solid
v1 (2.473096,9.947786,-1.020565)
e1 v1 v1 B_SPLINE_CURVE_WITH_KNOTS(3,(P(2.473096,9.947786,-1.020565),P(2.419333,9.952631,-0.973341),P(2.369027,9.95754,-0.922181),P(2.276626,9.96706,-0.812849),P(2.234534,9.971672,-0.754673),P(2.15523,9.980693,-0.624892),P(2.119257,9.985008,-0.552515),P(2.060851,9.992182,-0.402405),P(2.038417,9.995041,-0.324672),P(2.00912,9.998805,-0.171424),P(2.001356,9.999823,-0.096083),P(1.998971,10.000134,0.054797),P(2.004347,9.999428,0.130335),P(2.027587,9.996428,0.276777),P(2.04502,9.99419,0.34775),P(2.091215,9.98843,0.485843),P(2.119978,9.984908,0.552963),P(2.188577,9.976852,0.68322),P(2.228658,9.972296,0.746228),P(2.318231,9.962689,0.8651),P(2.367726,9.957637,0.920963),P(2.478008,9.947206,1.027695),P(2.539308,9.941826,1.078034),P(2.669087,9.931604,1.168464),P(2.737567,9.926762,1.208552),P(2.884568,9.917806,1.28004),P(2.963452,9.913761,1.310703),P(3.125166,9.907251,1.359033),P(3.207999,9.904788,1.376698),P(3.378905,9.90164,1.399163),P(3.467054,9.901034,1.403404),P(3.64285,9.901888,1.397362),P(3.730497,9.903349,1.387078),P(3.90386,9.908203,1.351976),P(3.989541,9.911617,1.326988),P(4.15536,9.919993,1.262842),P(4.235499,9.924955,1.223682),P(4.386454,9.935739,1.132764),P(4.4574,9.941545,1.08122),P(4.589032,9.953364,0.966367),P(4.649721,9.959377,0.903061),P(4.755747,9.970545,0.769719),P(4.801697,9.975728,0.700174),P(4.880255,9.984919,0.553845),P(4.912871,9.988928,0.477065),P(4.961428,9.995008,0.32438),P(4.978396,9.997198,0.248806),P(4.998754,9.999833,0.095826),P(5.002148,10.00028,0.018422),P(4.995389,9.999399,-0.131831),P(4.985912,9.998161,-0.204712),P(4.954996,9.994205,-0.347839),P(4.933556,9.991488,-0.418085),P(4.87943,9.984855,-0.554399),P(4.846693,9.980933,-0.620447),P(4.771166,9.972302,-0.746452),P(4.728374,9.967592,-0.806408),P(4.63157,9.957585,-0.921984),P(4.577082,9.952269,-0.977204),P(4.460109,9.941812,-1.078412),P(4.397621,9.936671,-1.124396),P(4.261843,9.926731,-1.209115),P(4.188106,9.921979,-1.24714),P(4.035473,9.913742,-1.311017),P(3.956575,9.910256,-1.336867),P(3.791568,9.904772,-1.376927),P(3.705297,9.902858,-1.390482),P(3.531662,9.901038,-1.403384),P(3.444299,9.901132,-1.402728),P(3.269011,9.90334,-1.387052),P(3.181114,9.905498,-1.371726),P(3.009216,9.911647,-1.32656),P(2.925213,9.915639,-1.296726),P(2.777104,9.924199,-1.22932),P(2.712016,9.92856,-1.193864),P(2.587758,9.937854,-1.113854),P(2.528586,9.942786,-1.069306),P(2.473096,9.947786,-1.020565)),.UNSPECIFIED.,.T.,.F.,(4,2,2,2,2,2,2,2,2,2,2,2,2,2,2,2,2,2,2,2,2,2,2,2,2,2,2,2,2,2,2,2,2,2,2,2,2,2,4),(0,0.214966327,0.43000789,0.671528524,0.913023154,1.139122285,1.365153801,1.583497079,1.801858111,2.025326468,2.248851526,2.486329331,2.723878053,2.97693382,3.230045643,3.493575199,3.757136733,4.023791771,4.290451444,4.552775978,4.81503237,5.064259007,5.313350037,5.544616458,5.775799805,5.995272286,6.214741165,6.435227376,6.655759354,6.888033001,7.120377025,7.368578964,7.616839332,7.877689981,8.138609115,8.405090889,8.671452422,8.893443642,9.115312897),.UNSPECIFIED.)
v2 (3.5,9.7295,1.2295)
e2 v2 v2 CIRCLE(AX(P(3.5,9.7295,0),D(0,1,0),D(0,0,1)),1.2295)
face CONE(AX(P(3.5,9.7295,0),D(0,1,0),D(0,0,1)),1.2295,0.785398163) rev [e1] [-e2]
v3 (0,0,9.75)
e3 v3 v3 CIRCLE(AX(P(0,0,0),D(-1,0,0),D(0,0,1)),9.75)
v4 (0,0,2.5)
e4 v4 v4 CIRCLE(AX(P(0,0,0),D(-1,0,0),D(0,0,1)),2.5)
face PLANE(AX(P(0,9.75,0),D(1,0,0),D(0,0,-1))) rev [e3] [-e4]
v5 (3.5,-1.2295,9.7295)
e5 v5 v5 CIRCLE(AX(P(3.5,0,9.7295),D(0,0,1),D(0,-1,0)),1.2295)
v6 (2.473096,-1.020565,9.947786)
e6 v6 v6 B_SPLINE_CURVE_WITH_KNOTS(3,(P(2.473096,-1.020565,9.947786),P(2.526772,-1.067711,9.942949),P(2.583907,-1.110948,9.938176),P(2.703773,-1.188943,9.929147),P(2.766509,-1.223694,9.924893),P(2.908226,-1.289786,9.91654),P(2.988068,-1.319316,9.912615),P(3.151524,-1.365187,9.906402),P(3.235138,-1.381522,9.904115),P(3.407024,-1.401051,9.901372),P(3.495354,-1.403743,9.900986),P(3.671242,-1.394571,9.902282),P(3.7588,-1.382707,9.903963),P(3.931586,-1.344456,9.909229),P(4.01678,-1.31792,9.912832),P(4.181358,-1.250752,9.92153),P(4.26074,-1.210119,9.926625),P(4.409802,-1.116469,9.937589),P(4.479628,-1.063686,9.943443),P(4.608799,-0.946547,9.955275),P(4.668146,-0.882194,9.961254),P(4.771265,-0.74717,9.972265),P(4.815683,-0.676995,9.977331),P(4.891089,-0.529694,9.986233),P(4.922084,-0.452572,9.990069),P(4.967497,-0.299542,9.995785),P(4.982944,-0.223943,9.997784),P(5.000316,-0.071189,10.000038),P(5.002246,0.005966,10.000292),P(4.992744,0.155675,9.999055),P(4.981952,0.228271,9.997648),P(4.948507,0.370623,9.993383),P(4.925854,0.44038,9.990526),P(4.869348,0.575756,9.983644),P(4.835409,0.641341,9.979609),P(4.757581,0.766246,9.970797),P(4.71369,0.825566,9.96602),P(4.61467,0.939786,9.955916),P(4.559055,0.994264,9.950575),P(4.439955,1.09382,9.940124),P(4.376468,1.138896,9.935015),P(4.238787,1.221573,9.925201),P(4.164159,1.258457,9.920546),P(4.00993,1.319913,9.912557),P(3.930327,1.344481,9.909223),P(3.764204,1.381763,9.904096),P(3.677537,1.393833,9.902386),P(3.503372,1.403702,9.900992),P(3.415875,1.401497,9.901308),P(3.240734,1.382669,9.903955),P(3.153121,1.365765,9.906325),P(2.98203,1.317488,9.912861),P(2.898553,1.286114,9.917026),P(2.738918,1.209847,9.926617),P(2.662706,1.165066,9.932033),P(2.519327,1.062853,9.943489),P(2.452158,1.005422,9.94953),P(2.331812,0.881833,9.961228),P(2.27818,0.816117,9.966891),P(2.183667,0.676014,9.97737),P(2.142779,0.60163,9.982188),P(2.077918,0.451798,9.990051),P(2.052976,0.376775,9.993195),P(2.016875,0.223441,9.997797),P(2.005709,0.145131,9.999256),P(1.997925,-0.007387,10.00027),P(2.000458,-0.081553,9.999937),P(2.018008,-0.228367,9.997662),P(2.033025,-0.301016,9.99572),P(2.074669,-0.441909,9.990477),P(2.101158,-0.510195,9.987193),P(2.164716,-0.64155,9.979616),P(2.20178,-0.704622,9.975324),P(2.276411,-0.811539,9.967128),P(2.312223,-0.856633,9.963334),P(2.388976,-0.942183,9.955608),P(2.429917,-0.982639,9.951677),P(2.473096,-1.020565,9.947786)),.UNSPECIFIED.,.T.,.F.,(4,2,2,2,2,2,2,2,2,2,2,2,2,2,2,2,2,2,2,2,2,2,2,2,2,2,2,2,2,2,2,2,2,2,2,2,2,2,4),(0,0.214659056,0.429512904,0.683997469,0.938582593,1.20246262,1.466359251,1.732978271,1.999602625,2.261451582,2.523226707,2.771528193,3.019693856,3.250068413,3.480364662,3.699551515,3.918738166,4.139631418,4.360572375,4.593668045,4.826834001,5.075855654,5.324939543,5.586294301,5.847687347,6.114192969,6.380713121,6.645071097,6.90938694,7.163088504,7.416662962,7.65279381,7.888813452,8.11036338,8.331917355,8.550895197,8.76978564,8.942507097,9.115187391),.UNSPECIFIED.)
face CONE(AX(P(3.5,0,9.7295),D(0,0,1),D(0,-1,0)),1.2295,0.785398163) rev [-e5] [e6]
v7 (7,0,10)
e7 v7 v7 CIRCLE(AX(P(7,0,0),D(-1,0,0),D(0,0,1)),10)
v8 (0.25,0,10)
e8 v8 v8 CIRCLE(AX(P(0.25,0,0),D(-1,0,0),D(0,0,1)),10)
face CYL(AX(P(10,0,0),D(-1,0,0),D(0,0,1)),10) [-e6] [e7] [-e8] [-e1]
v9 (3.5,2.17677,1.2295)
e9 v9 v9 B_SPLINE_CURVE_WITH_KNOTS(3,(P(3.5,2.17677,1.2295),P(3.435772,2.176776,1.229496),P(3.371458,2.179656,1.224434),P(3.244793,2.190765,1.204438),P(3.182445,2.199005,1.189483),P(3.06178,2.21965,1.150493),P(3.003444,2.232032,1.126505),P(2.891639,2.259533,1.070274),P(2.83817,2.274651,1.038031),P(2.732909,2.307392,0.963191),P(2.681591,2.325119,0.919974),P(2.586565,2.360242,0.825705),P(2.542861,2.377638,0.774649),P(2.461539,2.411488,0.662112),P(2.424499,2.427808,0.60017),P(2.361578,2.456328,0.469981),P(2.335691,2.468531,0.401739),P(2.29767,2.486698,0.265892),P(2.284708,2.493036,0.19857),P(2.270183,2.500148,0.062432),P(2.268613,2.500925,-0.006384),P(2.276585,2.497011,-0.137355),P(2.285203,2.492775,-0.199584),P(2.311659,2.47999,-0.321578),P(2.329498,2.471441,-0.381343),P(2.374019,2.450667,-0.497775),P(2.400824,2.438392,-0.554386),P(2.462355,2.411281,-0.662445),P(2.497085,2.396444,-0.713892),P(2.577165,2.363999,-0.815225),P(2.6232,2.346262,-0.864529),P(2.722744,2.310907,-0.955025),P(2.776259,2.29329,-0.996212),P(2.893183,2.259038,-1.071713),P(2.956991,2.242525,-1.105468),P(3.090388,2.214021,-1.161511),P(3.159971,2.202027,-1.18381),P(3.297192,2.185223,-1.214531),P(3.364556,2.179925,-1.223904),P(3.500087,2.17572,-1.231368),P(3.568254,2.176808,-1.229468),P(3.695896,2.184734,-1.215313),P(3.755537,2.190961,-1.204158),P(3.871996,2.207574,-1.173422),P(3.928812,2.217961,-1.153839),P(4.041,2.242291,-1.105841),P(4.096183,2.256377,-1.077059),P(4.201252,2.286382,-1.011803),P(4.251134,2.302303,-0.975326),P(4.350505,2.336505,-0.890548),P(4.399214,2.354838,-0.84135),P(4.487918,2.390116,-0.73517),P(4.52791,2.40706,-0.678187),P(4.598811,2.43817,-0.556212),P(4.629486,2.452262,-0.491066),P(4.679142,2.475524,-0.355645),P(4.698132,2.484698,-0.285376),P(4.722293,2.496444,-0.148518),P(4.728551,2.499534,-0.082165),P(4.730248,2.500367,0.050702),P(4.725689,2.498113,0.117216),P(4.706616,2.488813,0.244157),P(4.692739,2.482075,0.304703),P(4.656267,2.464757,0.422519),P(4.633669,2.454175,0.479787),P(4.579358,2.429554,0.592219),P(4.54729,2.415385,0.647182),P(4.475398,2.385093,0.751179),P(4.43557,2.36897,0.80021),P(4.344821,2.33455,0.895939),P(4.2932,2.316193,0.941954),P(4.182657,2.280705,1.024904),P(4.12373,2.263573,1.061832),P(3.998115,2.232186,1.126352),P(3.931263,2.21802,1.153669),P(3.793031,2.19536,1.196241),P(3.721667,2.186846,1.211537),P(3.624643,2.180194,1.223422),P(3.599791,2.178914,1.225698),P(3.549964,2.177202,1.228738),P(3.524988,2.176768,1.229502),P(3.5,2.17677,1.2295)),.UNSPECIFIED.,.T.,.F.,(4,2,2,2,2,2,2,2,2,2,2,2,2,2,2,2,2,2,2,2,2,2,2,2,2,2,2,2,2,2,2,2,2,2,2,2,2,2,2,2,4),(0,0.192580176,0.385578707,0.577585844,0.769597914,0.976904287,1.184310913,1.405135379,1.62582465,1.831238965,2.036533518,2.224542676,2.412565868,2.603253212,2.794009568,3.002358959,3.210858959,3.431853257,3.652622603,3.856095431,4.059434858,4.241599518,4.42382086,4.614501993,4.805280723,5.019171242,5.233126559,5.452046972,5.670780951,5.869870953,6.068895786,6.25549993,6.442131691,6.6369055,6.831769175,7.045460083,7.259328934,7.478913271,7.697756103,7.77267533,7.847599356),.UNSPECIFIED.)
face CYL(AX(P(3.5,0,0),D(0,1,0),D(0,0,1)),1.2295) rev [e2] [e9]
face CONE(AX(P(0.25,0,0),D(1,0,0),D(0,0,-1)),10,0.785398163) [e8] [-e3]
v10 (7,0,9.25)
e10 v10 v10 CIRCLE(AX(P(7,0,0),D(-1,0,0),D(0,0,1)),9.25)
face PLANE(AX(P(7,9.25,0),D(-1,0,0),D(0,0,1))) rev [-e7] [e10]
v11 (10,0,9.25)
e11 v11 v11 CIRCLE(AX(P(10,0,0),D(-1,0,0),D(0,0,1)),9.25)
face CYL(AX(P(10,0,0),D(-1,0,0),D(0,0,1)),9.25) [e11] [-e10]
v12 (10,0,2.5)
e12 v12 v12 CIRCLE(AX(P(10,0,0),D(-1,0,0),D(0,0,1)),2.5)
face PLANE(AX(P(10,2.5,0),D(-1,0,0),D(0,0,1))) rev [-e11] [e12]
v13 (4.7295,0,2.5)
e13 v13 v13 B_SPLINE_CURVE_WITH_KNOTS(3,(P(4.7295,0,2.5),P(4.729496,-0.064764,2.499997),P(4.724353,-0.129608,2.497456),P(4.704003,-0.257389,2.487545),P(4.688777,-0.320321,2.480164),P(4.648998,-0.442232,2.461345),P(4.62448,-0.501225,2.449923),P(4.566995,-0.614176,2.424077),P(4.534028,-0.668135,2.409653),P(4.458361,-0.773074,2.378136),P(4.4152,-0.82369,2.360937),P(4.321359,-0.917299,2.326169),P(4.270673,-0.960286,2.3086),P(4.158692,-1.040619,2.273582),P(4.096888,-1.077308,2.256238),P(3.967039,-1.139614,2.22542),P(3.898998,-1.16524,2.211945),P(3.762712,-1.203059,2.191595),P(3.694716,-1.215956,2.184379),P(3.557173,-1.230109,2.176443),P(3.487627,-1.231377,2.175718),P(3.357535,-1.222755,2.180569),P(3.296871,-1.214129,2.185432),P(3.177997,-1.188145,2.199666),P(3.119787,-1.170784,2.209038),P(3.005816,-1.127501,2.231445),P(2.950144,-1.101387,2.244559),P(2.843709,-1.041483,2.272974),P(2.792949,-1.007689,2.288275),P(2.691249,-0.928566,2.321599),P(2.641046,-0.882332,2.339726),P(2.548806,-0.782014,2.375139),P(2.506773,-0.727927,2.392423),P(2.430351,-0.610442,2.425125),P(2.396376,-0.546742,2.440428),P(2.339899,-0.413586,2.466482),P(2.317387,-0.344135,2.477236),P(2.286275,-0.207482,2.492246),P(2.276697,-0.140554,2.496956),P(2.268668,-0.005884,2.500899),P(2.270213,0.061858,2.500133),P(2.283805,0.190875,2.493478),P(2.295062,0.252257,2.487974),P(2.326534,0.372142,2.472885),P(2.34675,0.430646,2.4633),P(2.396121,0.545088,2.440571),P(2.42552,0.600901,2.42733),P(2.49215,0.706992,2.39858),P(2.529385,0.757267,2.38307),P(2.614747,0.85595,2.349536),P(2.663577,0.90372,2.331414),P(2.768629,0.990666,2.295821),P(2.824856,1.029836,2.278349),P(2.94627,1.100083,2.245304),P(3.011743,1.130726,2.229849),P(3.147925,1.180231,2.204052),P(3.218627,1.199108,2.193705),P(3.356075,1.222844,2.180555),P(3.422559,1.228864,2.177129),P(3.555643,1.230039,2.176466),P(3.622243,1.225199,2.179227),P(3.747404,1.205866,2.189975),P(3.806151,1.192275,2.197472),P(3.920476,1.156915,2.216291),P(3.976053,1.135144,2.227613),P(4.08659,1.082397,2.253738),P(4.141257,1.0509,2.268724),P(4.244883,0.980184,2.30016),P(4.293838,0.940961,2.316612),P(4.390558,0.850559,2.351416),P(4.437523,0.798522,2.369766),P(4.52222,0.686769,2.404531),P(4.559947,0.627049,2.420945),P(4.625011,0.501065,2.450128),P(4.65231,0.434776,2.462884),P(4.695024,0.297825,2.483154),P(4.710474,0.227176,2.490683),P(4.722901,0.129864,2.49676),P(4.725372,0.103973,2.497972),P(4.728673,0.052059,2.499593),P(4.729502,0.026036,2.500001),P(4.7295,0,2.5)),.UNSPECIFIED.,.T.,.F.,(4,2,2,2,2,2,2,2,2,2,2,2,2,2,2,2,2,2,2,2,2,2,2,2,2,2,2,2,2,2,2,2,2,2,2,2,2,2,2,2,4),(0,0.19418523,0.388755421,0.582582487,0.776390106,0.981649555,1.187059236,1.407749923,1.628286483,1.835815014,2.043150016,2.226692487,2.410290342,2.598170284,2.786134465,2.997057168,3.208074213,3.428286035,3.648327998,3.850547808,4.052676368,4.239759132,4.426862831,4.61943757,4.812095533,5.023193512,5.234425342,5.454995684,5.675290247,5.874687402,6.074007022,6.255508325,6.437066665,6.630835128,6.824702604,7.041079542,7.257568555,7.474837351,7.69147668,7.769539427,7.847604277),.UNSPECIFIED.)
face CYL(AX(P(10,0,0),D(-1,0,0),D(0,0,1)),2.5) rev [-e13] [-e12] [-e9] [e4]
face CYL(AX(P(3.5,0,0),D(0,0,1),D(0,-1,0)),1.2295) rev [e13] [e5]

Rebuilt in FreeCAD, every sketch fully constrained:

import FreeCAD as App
import Part
import Sketcher

V = App.Vector
Q = App.Units.Quantity

doc = App.newDocument("Part")
params = doc.addObject("Spreadsheet::Sheet", "Params")
for row, (alias, value) in enumerate([
    ("sketch1_width", "10 mm"),
    ("sketch1_width2", "3 mm"),
    ("sketch1_width3", "6.75 mm"),
    ("sketch1_height", "7.25 mm"),
    ("revolution_angle", "360 deg"),
    ("sketch2_width", "10 mm"),
    ("sketch2_height", "1.5 mm"),
    ("groove_angle", "360 deg"),
    ("sketch3_height", "10 mm"),
    ("sketch3_width", "1.5 mm"),
    ("groove2_angle", "360 deg"),
], start=1):
    params.set(f"A{row}", alias)
    params.set(f"B{row}", "=" + value)
    params.setAlias(f"B{row}", alias)

body = doc.addObject("PartDesign::Body", "Body")

# Sketch on XY plane
sketch1 = body.newObject("Sketcher::SketchObject", "Sketch")
sketch1.AttachmentSupport = (doc.getObject("XY_Plane"), [""])
sketch1.MapMode = "FlatFace"
sketch1.addGeometry([
    Part.LineSegment(V(0, 9.75, 0), V(0, 2.5, 0)),  # 0
    Part.LineSegment(V(0, 2.5, 0), V(10, 2.5, 0)),  # 1
    Part.LineSegment(V(10, 2.5, 0), V(10, 9.25, 0)),  # 2
    Part.LineSegment(V(10, 9.25, 0), V(7, 9.25, 0)),  # 3
    Part.LineSegment(V(7, 9.25, 0), V(7, 10, 0)),  # 4
    Part.LineSegment(V(7, 10, 0), V(0.25, 10, 0)),  # 5
    Part.LineSegment(V(0.25, 10, 0), V(0, 9.75, 0)),  # 6
], False)
sketch1.addConstraint([
    Sketcher.Constraint("Coincident", 0, 2, 1, 1),
    Sketcher.Constraint("Coincident", 1, 2, 2, 1),
    Sketcher.Constraint("Coincident", 2, 2, 3, 1),
    Sketcher.Constraint("Coincident", 3, 2, 4, 1),
    Sketcher.Constraint("Coincident", 4, 2, 5, 1),
    Sketcher.Constraint("Coincident", 5, 2, 6, 1),
    Sketcher.Constraint("Coincident", 6, 2, 0, 1),
    Sketcher.Constraint("Vertical", 0),
    Sketcher.Constraint("Horizontal", 1),
    Sketcher.Constraint("Vertical", 2),
    Sketcher.Constraint("Horizontal", 3),
    Sketcher.Constraint("Vertical", 4),
    Sketcher.Constraint("Horizontal", 5),
    Sketcher.Constraint("PointOnObject", 0, 2, -2),
    Sketcher.Constraint("Equal", 5, 2),
    Sketcher.Constraint("DistanceX", 1, 1, 1, 2, 10.0),
    Sketcher.Constraint("DistanceX", 3, 2, 3, 1, 3.0),
    Sketcher.Constraint("Angle", 6, Q("-135 deg")),
    Sketcher.Constraint("DistanceY", -1, 1, 4, 2, 10.0),
    Sketcher.Constraint("DistanceX", 5, 2, 5, 1, 6.75),
    Sketcher.Constraint("DistanceY", 0, 2, 0, 1, 7.25),
])
sketch1.setExpression("Constraints[15]", "Params.sketch1_width")
sketch1.setExpression("Constraints[16]", "Params.sketch1_width2")
sketch1.setExpression("Constraints[19]", "Params.sketch1_width3")
sketch1.setExpression("Constraints[20]", "Params.sketch1_height")
revolution = body.newObject("PartDesign::Revolution", "Revolution")
revolution.Profile = sketch1
revolution.ReferenceAxis = (sketch1, ["H_Axis"])
revolution.setExpression("Angle", "Params.revolution_angle")

# Sketch on YZ plane
sketch2 = body.newObject("Sketcher::SketchObject", "Sketch001")
sketch2.AttachmentSupport = (doc.getObject("YZ_Plane"), [""])
sketch2.MapMode = "FlatFace"
sketch2.AttachmentOffset = App.Placement(V(0, 0, 3.5), App.Rotation())
sketch2.addGeometry([
    Part.LineSegment(V(10, -1.5, 0), V(10, 0, 0)),  # 0
    Part.LineSegment(V(10, 0, 0), V(0, 0, 0)),  # 1
    Part.LineSegment(V(0, 0, 0), V(0, -1.23, 0)),  # 2
    Part.LineSegment(V(0, -1.23, 0), V(9.73, -1.23, 0)),  # 3
    Part.LineSegment(V(9.73, -1.23, 0), V(10, -1.5, 0)),  # 4
], False)
sketch2.addConstraint([
    Sketcher.Constraint("Coincident", 0, 2, 1, 1),
    Sketcher.Constraint("Coincident", 1, 2, 2, 1),
    Sketcher.Constraint("Coincident", 2, 2, 3, 1),
    Sketcher.Constraint("Coincident", 3, 2, 4, 1),
    Sketcher.Constraint("Coincident", 4, 2, 0, 1),
    Sketcher.Constraint("Vertical", 0),
    Sketcher.Constraint("Horizontal", 1),
    Sketcher.Constraint("Vertical", 2),
    Sketcher.Constraint("Horizontal", 3),
    Sketcher.Constraint("Coincident", 1, 2, -1, 1),
    Sketcher.Constraint("DistanceX", 1, 2, 1, 1, 10.0),
    Sketcher.Constraint("Angle", 4, Q("-45 deg")),
    Sketcher.Constraint("DistanceY", 0, 1, 0, 2, 1.5),
    Sketcher.Constraint("DistanceX", 3, 1, 3, 2, 9.7295),
])
sketch2.setExpression("Constraints[10]", "Params.sketch2_width")
sketch2.setExpression("Constraints[12]", "Params.sketch2_height")
groove = body.newObject("PartDesign::Groove", "Groove")
groove.Profile = sketch2
groove.ReferenceAxis = (sketch2, ["H_Axis"])
groove.setExpression("Angle", "Params.groove_angle")

# Sketch on YZ plane
sketch3 = body.newObject("Sketcher::SketchObject", "Sketch002")
sketch3.AttachmentSupport = (doc.getObject("YZ_Plane"), [""])
sketch3.MapMode = "FlatFace"
sketch3.AttachmentOffset = App.Placement(V(0, 0, 3.5), App.Rotation())
sketch3.addGeometry([
    Part.LineSegment(V(1.5, 10, 0), V(0, 10, 0)),  # 0
    Part.LineSegment(V(0, 10, 0), V(0, 0, 0)),  # 1
    Part.LineSegment(V(0, 0, 0), V(1.23, 0, 0)),  # 2
    Part.LineSegment(V(1.23, 0, 0), V(1.23, 9.73, 0)),  # 3
    Part.LineSegment(V(1.23, 9.73, 0), V(1.5, 10, 0)),  # 4
], False)
sketch3.addConstraint([
    Sketcher.Constraint("Coincident", 0, 2, 1, 1),
    Sketcher.Constraint("Coincident", 1, 2, 2, 1),
    Sketcher.Constraint("Coincident", 2, 2, 3, 1),
    Sketcher.Constraint("Coincident", 3, 2, 4, 1),
    Sketcher.Constraint("Coincident", 4, 2, 0, 1),
    Sketcher.Constraint("Horizontal", 0),
    Sketcher.Constraint("Vertical", 1),
    Sketcher.Constraint("Horizontal", 2),
    Sketcher.Constraint("Vertical", 3),
    Sketcher.Constraint("Coincident", 1, 2, -1, 1),
    Sketcher.Constraint("DistanceY", 1, 2, 1, 1, 10.0),
    Sketcher.Constraint("Angle", 4, Q("45 deg")),
    Sketcher.Constraint("DistanceX", 0, 2, 0, 1, 1.5),
    Sketcher.Constraint("DistanceX", 2, 1, 2, 2, 1.2295),
])
sketch3.setExpression("Constraints[10]", "Params.sketch3_height")
sketch3.setExpression("Constraints[12]", "Params.sketch3_width")
groove2 = body.newObject("PartDesign::Groove", "Groove001")
groove2.Profile = sketch3
groove2.ReferenceAxis = (sketch3, ["V_Axis"])
groove2.setExpression("Angle", "Params.groove2_angle")

doc.recompute()
